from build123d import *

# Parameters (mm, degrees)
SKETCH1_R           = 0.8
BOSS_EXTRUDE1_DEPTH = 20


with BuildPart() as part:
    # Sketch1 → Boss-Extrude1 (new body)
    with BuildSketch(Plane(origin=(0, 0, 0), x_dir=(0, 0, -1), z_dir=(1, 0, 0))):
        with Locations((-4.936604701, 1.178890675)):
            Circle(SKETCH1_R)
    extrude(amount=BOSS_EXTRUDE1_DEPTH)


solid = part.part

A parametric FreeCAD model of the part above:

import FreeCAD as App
import Part
import Sketcher

V = App.Vector
Q = App.Units.Quantity

doc = App.newDocument("Part")
body = doc.addObject("PartDesign::Body", "Body")

# Sketch on YZ plane
sketch1 = body.newObject("Sketcher::SketchObject", "Sketch")
sketch1.AttachmentSupport = (doc.getObject("YZ_Plane"), [""])
sketch1.MapMode = "FlatFace"
sketch1.addGeometry(Part.Circle(V(1.2, 4.9, 0), V(0, 0, 1), 0.8), False)
sketch1.addConstraint(Sketcher.Constraint("Diameter", 0, Q("1.6 mm")))
sketch1.addConstraint(Sketcher.Constraint("DistanceX", -1, 1, 0, 3, Q("1.178891 mm")))
sketch1.addConstraint(Sketcher.Constraint("DistanceY", -1, 1, 0, 3, Q("4.936605 mm")))
pad1 = body.newObject("PartDesign::Pad", "Pad")
pad1.Profile = sketch1
pad1.Length = 20

doc.recompute()
